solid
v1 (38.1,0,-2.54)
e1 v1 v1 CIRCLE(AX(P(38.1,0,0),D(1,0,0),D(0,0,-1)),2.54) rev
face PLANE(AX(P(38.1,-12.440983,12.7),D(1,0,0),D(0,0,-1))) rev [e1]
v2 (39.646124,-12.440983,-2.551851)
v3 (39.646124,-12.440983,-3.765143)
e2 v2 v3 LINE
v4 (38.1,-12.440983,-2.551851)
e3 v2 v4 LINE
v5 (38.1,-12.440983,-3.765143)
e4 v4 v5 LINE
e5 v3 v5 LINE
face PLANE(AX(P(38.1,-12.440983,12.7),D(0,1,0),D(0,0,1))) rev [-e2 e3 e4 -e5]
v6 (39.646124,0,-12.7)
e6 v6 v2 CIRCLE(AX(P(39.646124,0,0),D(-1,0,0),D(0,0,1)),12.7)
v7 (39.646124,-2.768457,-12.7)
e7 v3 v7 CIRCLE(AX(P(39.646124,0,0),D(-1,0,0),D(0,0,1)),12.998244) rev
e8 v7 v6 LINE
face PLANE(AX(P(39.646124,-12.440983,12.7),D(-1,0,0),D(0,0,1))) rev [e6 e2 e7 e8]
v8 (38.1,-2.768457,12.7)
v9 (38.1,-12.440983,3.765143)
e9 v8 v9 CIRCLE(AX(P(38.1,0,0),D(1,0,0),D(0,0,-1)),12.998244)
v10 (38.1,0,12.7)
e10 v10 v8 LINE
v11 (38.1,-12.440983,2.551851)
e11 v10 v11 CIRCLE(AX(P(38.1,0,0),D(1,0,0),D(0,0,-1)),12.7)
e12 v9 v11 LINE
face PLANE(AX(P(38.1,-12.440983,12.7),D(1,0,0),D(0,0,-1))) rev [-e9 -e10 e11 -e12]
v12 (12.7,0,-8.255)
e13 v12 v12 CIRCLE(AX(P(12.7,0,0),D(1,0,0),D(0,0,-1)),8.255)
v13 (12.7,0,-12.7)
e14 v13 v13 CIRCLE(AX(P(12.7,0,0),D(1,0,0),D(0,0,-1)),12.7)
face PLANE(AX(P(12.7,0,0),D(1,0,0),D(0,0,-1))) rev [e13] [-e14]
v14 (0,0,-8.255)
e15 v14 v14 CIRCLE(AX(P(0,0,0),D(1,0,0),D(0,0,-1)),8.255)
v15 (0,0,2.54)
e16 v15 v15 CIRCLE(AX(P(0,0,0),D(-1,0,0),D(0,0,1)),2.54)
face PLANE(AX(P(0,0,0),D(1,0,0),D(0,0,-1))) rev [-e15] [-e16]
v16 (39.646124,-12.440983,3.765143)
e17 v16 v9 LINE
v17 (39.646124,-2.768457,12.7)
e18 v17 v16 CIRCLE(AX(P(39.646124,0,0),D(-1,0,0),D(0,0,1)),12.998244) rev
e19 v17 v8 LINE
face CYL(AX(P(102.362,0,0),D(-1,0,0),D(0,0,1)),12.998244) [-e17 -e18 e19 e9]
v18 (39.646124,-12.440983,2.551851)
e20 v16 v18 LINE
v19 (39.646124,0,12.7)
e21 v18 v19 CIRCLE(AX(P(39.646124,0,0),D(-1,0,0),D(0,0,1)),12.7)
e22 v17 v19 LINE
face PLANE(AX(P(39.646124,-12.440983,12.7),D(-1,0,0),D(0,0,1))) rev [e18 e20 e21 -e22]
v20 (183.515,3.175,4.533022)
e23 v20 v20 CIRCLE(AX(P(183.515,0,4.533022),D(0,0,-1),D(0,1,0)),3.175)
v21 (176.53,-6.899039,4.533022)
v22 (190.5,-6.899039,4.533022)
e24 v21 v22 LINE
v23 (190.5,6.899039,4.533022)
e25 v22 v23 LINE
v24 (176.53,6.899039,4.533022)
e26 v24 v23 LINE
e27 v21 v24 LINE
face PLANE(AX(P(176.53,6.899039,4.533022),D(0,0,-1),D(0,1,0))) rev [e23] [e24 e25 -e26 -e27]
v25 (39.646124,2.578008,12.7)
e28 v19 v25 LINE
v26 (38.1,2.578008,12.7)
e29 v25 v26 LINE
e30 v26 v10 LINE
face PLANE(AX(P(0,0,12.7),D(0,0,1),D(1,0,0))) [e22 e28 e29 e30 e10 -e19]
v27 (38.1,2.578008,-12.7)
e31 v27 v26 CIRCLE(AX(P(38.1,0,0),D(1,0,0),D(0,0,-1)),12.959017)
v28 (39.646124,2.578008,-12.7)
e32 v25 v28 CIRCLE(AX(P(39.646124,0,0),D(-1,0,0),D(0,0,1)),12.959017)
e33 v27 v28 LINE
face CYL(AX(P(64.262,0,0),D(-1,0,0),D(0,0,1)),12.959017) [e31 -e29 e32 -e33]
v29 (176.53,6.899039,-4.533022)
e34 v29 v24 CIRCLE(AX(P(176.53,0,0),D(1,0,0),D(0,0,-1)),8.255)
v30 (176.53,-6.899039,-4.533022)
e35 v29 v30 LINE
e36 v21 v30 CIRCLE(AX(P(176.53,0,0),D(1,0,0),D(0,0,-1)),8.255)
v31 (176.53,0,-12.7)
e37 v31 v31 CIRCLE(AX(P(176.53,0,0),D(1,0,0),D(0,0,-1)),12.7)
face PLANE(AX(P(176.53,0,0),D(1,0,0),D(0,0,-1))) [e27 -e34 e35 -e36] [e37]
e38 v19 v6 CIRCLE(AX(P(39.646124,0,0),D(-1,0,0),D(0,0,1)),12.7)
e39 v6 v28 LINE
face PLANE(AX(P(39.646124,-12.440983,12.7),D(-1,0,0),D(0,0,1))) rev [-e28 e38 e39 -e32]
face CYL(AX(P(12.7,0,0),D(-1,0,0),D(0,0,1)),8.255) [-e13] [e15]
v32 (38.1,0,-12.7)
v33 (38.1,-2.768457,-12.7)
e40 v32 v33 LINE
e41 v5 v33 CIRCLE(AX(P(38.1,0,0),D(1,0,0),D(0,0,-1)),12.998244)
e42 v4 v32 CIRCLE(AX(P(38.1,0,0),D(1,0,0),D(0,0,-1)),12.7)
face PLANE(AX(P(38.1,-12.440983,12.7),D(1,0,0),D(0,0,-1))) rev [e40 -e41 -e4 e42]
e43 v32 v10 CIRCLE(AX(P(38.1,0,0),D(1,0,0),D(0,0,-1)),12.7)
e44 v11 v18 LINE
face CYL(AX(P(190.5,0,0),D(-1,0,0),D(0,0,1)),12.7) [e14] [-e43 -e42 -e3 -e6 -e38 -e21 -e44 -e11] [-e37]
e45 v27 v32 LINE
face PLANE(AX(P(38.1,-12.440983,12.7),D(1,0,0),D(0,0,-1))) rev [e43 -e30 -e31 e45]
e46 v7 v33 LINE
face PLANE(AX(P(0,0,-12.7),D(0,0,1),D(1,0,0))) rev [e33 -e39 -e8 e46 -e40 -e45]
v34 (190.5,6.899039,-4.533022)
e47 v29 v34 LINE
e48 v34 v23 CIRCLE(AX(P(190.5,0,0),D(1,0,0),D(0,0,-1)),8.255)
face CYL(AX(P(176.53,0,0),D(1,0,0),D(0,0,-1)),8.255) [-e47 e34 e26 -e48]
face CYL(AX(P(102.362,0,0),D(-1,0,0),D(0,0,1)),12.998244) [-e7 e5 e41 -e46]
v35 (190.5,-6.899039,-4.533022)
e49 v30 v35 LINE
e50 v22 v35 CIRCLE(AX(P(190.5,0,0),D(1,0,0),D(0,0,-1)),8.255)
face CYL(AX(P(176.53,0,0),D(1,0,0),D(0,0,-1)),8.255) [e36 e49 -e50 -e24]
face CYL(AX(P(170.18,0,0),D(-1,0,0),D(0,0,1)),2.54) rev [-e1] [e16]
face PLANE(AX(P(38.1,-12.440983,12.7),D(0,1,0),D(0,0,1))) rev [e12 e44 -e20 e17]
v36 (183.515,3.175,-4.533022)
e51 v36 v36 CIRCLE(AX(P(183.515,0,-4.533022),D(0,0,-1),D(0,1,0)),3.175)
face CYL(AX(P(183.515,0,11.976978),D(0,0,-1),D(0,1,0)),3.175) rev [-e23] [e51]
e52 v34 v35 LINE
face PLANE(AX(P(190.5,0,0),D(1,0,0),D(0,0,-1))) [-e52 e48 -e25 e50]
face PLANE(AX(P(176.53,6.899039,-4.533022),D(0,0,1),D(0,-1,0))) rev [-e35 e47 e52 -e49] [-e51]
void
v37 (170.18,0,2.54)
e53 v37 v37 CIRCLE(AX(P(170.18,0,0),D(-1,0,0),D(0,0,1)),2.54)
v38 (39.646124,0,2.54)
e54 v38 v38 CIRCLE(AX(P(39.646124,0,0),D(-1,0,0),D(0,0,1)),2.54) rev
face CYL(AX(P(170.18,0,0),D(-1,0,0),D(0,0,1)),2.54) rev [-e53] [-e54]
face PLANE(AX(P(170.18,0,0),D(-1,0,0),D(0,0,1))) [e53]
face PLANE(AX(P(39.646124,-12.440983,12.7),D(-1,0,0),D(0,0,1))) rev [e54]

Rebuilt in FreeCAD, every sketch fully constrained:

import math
import FreeCAD as App
import Part
import Sketcher
from FreeCAD import Vector
Q = App.Units.Quantity


def add_polygon(sketch, points):
    """Adds a closed chain of lines whose ends are joined by coincident constraints."""
    first, n = sketch.GeometryCount, len(points)
    for a, b in zip(points, points[1:] + points[:1]):
        sketch.addGeometry(Part.LineSegment(App.Vector(*a, 0), App.Vector(*b, 0)), False)
    for i in range(n):
        sketch.addConstraint(Sketcher.Constraint("Coincident", first + i, 2, first + (i + 1) % n, 1))

doc = App.newDocument("Part")
params = doc.addObject("Spreadsheet::Sheet", "Params")
for row, (alias, value) in enumerate([
    ("sketch1_diameter", "1 in"),
    ("pad1_length", "7.5 in"),
    ("sketch2_diameter", "1 in"),
    ("sketch2_diameter2", "0.65 in"),
    ("pocket1_length", "0.5 in"),
    ("sketch3_diameter", "0.2 in"),
    ("pocket2_length", "6.7 in"),
    ("sketch4_diameter", "1 in"),
    ("sketch4_diameter2", "0.65 in"),
    ("pocket3_length", "0.65 in"),
    ("sketch5_radius", "0.325 in"),
    ("pocket4_length", "0.65 in"),
    ("sketch6_diameter", "0.25 in"),
    ("pocket5_length", "0.65 in"),
    ("sketch7_height", "1 in"),
    ("pad2_length", "0.5 in"),
    ("pad2_length2", "0.5 in"),
    ("sketch8_height", "0.5 in"),
    ("pocket6_length", "2.53 in"),
    ("sketch9_height", "0.5 in"),
    ("pocket7_length", "2.53 in"),
    ("pocket8_length", "2.53 in"),
], start=1):
    params.set(f"A{row}", alias)
    params.set(f"B{row}", "=" + value)
    params.setAlias(f"B{row}", alias)

body = doc.addObject("PartDesign::Body", "Body")

sketch1 = doc.addObject("Sketcher::SketchObject", "Sketch")
body.addObject(sketch1)
sketch1.AttachmentSupport = (doc.YZ_Plane, [""])
sketch1.MapMode = "FlatFace"
sketch1.addGeometry(Part.Circle(Vector(0, 0, 0), Vector(0, 0, 1), 13), False)
sketch1.addConstraint(Sketcher.Constraint("Coincident", 0, 3, -1, 1))
sketch1.addConstraint(Sketcher.Constraint("Diameter", 0, Q("1 in")))
sketch1.setExpression("Constraints[1]", "Params.sketch1_diameter")
pad1 = doc.addObject("PartDesign::Pad", "Pad")
body.addObject(pad1)
pad1.Profile = sketch1
pad1.setExpression("Length", "Params.pad1_length")

sketch2 = doc.addObject("Sketcher::SketchObject", "Sketch001")
body.addObject(sketch2)
sketch2.AttachmentSupport = (doc.YZ_Plane, [""])
sketch2.MapMode = "FlatFace"
sketch2.addGeometry(Part.Circle(Vector(0, 0, 0), Vector(0, 0, 1), 13), False)
sketch2.addGeometry(Part.Circle(Vector(0, 0, 0), Vector(0, 0, 1), 8), False)
sketch2.addConstraint(Sketcher.Constraint("Coincident", 0, 3, -1, 1))
sketch2.addConstraint(Sketcher.Constraint("Coincident", 1, 3, -1, 1))
sketch2.addConstraint(Sketcher.Constraint("Diameter", 0, Q("1 in")))
sketch2.addConstraint(Sketcher.Constraint("Diameter", 1, Q("0.65 in")))
sketch2.setExpression("Constraints[2]", "Params.sketch2_diameter")
sketch2.setExpression("Constraints[3]", "Params.sketch2_diameter2")
pocket1 = doc.addObject("PartDesign::Pocket", "Pocket")
body.addObject(pocket1)
pocket1.Profile = sketch2
pocket1.setExpression("Length", "Params.pocket1_length")
pocket1.Reversed = True

sketch3 = doc.addObject("Sketcher::SketchObject", "Sketch002")
body.addObject(sketch3)
sketch3.AttachmentSupport = (doc.YZ_Plane, [""])
sketch3.MapMode = "FlatFace"
sketch3.addGeometry(Part.Circle(Vector(0, 0, 0), Vector(0, 0, 1), 2.5), False)
sketch3.addConstraint(Sketcher.Constraint("Coincident", 0, 3, -1, 1))
sketch3.addConstraint(Sketcher.Constraint("Diameter", 0, Q("0.2 in")))
sketch3.setExpression("Constraints[1]", "Params.sketch3_diameter")
pocket2 = doc.addObject("PartDesign::Pocket", "Pocket001")
body.addObject(pocket2)
pocket2.Profile = sketch3
pocket2.setExpression("Length", "Params.pocket2_length")
pocket2.Reversed = True

sketch4 = doc.addObject("Sketcher::SketchObject", "Sketch003")
body.addObject(sketch4)
sketch4.AttachmentSupport = (doc.YZ_Plane, [""])
sketch4.MapMode = "FlatFace"
sketch4.AttachmentOffset = App.Placement(Vector(0, 0, 7.6 * 25.4), App.Rotation())
sketch4.addGeometry(Part.Circle(Vector(0, 0, 0), Vector(0, 0, 1), 13), False)
sketch4.addGeometry(Part.Circle(Vector(0, 0, 0), Vector(0, 0, 1), 8), False)
sketch4.addConstraint(Sketcher.Constraint("Coincident", 0, 3, -1, 1))
sketch4.addConstraint(Sketcher.Constraint("Coincident", 1, 3, -1, 1))
sketch4.addConstraint(Sketcher.Constraint("Diameter", 0, Q("1 in")))
sketch4.addConstraint(Sketcher.Constraint("Diameter", 1, Q("0.65 in")))
sketch4.setExpression("Constraints[2]", "Params.sketch4_diameter")
sketch4.setExpression("Constraints[3]", "Params.sketch4_diameter2")
pocket3 = doc.addObject("PartDesign::Pocket", "Pocket002")
body.addObject(pocket3)
pocket3.Profile = sketch4
pocket3.setExpression("Length", "Params.pocket3_length")

sketch5 = doc.addObject("Sketcher::SketchObject", "Sketch004")
body.addObject(sketch5)
sketch5.AttachmentSupport = (doc.YZ_Plane, [""])
sketch5.MapMode = "FlatFace"
sketch5.AttachmentOffset = App.Placement(Vector(0, 0, 7.6 * 25.4), App.Rotation())
sketch5.addGeometry(Part.LineSegment(Vector(-7, 5, 0), Vector(7, 5, 0)), False)
sketch5.addGeometry(Part.ArcOfCircle(Part.Circle(Vector(0, 0, 0), Vector(0, 0, 1), 8), math.radians(33), math.radians(147)), False)
sketch5.addGeometry(Part.LineSegment(Vector(7, -5, 0), Vector(-7, -5, 0)), False)
sketch5.addGeometry(Part.ArcOfCircle(Part.Circle(Vector(0, 0, 0), Vector(0, 0, 1), 8), math.radians(-147), math.radians(-33)), False)
sketch5.addConstraint(Sketcher.Constraint("Coincident", 0, 1, 1, 2))
sketch5.addConstraint(Sketcher.Constraint("Coincident", 1, 1, 0, 2))
sketch5.addConstraint(Sketcher.Constraint("Coincident", 2, 1, 3, 2))
sketch5.addConstraint(Sketcher.Constraint("Coincident", 3, 1, 2, 2))
sketch5.addConstraint(Sketcher.Constraint("Horizontal", 0))
sketch5.addConstraint(Sketcher.Constraint("Horizontal", 2))
sketch5.addConstraint(Sketcher.Constraint("Coincident", 1, 3, -1, 1))
sketch5.addConstraint(Sketcher.Constraint("Coincident", 3, 3, -1, 1))
sketch5.addConstraint(Sketcher.Constraint("Equal", 1, 3))
sketch5.addConstraint(Sketcher.Constraint("Vertical", 1, 1, 2, 1))
sketch5.addConstraint(Sketcher.Constraint("Radius", 1, Q("0.325 in")))
sketch5.addConstraint(Sketcher.Constraint("DistanceX", 0, 1, 0, 2, 13.798077))
sketch5.setExpression("Constraints[10]", "Params.sketch5_radius")
pocket4 = doc.addObject("PartDesign::Pocket", "Pocket003")
body.addObject(pocket4)
pocket4.Profile = sketch5
pocket4.setExpression("Length", "Params.pocket4_length")

sketch6 = doc.addObject("Sketcher::SketchObject", "Sketch005")
body.addObject(sketch6)
sketch6.AttachmentSupport = (doc.XY_Plane, [""])
sketch6.MapMode = "FlatFace"
sketch6.AttachmentOffset = App.Placement(Vector(0, 0, -4.533022), App.Rotation())
sketch6.addGeometry(Part.Circle(Vector(183.5, 0, 0), Vector(0, 0, 1), 3.2), False)
sketch6.addConstraint(Sketcher.Constraint("PointOnObject", 0, 3, -1))
sketch6.addConstraint(Sketcher.Constraint("Diameter", 0, Q("0.25 in")))
sketch6.addConstraint(Sketcher.Constraint("DistanceX", -1, 1, 0, 3, Q("7.225 in")))
sketch6.setExpression("Constraints[1]", "Params.sketch6_diameter")
pocket5 = doc.addObject("PartDesign::Pocket", "Pocket004")
body.addObject(pocket5)
pocket5.Profile = sketch6
pocket5.setExpression("Length", "Params.pocket5_length")
pocket5.Reversed = True

sketch7 = doc.addObject("Sketcher::SketchObject", "Sketch006")
body.addObject(sketch7)
sketch7.AttachmentSupport = (doc.XY_Plane, [""])
sketch7.MapMode = "FlatFace"
add_polygon(sketch7, [(38.1, 13), (38.1, -12.4), (39.6, -12.4), (39.6, 13)])
sketch7.addConstraint(Sketcher.Constraint("Vertical", 0))
sketch7.addConstraint(Sketcher.Constraint("Horizontal", 1))
sketch7.addConstraint(Sketcher.Constraint("Vertical", 2))
sketch7.addConstraint(Sketcher.Constraint("Horizontal", 3))
sketch7.addConstraint(Sketcher.Constraint("DistanceY", 0, 2, 0, 1, Q("1 in")))
sketch7.addConstraint(Sketcher.Constraint("DistanceX", -1, 1, 0, 2, Q("1.5 in")))
sketch7.addConstraint(Sketcher.Constraint("DistanceX", 1, 1, 1, 2, 1.546124))
sketch7.addConstraint(Sketcher.Constraint("DistanceY", 0, 2, -1, 1, 12.440983))
sketch7.setExpression("Constraints[8]", "Params.sketch7_height")
pad2 = doc.addObject("PartDesign::Pad", "Pad001")
body.addObject(pad2)
pad2.Profile = sketch7
pad2.Type = "TwoLengths"
pad2.setExpression("Length", "Params.pad2_length")
pad2.setExpression("Length2", "Params.pad2_length2")

sketch8 = doc.addObject("Sketcher::SketchObject", "Sketch007")
body.addObject(sketch8)
sketch8.AttachmentSupport = (doc.YZ_Plane, [""])
sketch8.MapMode = "FlatFace"
sketch8.addGeometry(Part.LineSegment(Vector(13, 0, 0), Vector(13, 13, 0)), False)
sketch8.addGeometry(Part.LineSegment(Vector(13, 13, 0), Vector(3, 13, 0)), False)
sketch8.addGeometry(Part.ArcOfCircle(Part.Circle(Vector(0, 0, 0), Vector(0, 0, 1), 13), math.radians(0), math.radians(79)), False)
sketch8.addConstraint(Sketcher.Constraint("Coincident", 0, 2, 1, 1))
sketch8.addConstraint(Sketcher.Constraint("Coincident", 1, 2, 2, 2))
sketch8.addConstraint(Sketcher.Constraint("Tangent", 2, 1, 0, 1))
sketch8.addConstraint(Sketcher.Constraint("Vertical", 0))
sketch8.addConstraint(Sketcher.Constraint("Horizontal", 1))
sketch8.addConstraint(Sketcher.Constraint("Coincident", 2, 3, -1, 1))
sketch8.addConstraint(Sketcher.Constraint("DistanceY", 0, 1, 0, 2, Q("0.5 in")))
sketch8.addConstraint(Sketcher.Constraint("Radius", 2, 12.959017))
sketch8.setExpression("Constraints[6]", "Params.sketch8_height")
pocket6 = doc.addObject("PartDesign::Pocket", "Pocket005")
body.addObject(pocket6)
pocket6.Profile = sketch8
pocket6.setExpression("Length", "Params.pocket6_length")
pocket6.Reversed = True

sketch9 = doc.addObject("Sketcher::SketchObject", "Sketch008")
body.addObject(sketch9)
sketch9.AttachmentSupport = (doc.YZ_Plane, [""])
sketch9.MapMode = "FlatFace"
sketch9.AttachmentOffset = App.Placement(Vector(0, 0, 1.5 * 25.4), App.Rotation())
sketch9.addGeometry(Part.LineSegment(Vector(13, -13, 0), Vector(3, -13, 0)), False)
sketch9.addGeometry(Part.ArcOfCircle(Part.Circle(Vector(0, 0, 0), Vector(0, 0, 1), 13), math.radians(-79), math.radians(0)), False)
sketch9.addGeometry(Part.LineSegment(Vector(13, 0, 0), Vector(13, -13, 0)), False)
sketch9.addConstraint(Sketcher.Constraint("Coincident", 0, 2, 1, 1))
sketch9.addConstraint(Sketcher.Constraint("Tangent", 1, 2, 2, 1))
sketch9.addConstraint(Sketcher.Constraint("Coincident", 2, 2, 0, 1))
sketch9.addConstraint(Sketcher.Constraint("Horizontal", 0))
sketch9.addConstraint(Sketcher.Constraint("Vertical", 2))
sketch9.addConstraint(Sketcher.Constraint("Coincident", 1, 3, -1, 1))
sketch9.addConstraint(Sketcher.Constraint("DistanceY", 2, 2, 2, 1, Q("0.5 in")))
sketch9.addConstraint(Sketcher.Constraint("Radius", 1, 12.959017))
sketch9.setExpression("Constraints[6]", "Params.sketch9_height")
pocket7 = doc.addObject("PartDesign::Pocket", "Pocket006")
body.addObject(pocket7)
pocket7.Profile = sketch9
pocket7.setExpression("Length", "Params.pocket7_length")
pocket7.Reversed = True

sketch10 = doc.addObject("Sketcher::SketchObject", "Sketch009")
body.addObject(sketch10)
sketch10.AttachmentSupport = (doc.YZ_Plane, [""])
sketch10.MapMode = "FlatFace"
sketch10.AttachmentOffset = App.Placement(Vector(0, 0, 1.5 * 25.4), App.Rotation())
sketch10.addGeometry(Part.LineSegment(Vector(-12, 13, 0), Vector(-3, 13, 0)), False)
sketch10.addGeometry(Part.ArcOfCircle(Part.Circle(Vector(0, 0, 0), Vector(0, 0, 1), 13), math.radians(102), math.radians(163)), False)
sketch10.addGeometry(Part.LineSegment(Vector(-12, 4, 0), Vector(-12, 13, 0)), False)
sketch10.addGeometry(Part.LineSegment(Vector(-2, -13, 0), Vector(-12, -13, 0)), False)
sketch10.addGeometry(Part.LineSegment(Vector(-12, -13, 0), Vector(-12, -4, 0)), False)
sketch10.addGeometry(Part.ArcOfCircle(Part.Circle(Vector(0, 0, 0), Vector(0, 0, 1), 13), math.radians(-163), math.radians(-101)), False)
sketch10.addConstraint(Sketcher.Constraint("Coincident", 0, 2, 1, 1))
sketch10.addConstraint(Sketcher.Constraint("Coincident", 1, 2, 2, 1))
sketch10.addConstraint(Sketcher.Constraint("Coincident", 2, 2, 0, 1))
sketch10.addConstraint(Sketcher.Constraint("Coincident", 3, 2, 4, 1))
sketch10.addConstraint(Sketcher.Constraint("Coincident", 4, 2, 5, 1))
sketch10.addConstraint(Sketcher.Constraint("Coincident", 5, 2, 3, 1))
sketch10.addConstraint(Sketcher.Constraint("Horizontal", 0))
sketch10.addConstraint(Sketcher.Constraint("Vertical", 2))
sketch10.addConstraint(Sketcher.Constraint("Vertical", 4))
sketch10.addConstraint(Sketcher.Constraint("Coincident", 1, 3, -1, 1))
sketch10.addConstraint(Sketcher.Constraint("Coincident", 5, 3, -1, 1))
sketch10.addConstraint(Sketcher.Constraint("Equal", 1, 5))
sketch10.addConstraint(Sketcher.Constraint("Symmetric", 2, 2, 3, 2, -1))
sketch10.addConstraint(Sketcher.Constraint("DistanceY", 3, 2, 2, 2, Q("1 in")))
sketch10.addConstraint(Sketcher.Constraint("Radius", 1, 12.998244))
sketch10.addConstraint(Sketcher.Constraint("DistanceX", 5, 2, -1, 1, 2.428001))
sketch10.addConstraint(Sketcher.Constraint("DistanceX", 0, 1, 0, 2, 9.672525))
pocket8 = doc.addObject("PartDesign::Pocket", "Pocket007")
body.addObject(pocket8)
pocket8.Profile = sketch10
pocket8.setExpression("Length", "Params.pocket8_length")
pocket8.Reversed = True

doc.recompute()
